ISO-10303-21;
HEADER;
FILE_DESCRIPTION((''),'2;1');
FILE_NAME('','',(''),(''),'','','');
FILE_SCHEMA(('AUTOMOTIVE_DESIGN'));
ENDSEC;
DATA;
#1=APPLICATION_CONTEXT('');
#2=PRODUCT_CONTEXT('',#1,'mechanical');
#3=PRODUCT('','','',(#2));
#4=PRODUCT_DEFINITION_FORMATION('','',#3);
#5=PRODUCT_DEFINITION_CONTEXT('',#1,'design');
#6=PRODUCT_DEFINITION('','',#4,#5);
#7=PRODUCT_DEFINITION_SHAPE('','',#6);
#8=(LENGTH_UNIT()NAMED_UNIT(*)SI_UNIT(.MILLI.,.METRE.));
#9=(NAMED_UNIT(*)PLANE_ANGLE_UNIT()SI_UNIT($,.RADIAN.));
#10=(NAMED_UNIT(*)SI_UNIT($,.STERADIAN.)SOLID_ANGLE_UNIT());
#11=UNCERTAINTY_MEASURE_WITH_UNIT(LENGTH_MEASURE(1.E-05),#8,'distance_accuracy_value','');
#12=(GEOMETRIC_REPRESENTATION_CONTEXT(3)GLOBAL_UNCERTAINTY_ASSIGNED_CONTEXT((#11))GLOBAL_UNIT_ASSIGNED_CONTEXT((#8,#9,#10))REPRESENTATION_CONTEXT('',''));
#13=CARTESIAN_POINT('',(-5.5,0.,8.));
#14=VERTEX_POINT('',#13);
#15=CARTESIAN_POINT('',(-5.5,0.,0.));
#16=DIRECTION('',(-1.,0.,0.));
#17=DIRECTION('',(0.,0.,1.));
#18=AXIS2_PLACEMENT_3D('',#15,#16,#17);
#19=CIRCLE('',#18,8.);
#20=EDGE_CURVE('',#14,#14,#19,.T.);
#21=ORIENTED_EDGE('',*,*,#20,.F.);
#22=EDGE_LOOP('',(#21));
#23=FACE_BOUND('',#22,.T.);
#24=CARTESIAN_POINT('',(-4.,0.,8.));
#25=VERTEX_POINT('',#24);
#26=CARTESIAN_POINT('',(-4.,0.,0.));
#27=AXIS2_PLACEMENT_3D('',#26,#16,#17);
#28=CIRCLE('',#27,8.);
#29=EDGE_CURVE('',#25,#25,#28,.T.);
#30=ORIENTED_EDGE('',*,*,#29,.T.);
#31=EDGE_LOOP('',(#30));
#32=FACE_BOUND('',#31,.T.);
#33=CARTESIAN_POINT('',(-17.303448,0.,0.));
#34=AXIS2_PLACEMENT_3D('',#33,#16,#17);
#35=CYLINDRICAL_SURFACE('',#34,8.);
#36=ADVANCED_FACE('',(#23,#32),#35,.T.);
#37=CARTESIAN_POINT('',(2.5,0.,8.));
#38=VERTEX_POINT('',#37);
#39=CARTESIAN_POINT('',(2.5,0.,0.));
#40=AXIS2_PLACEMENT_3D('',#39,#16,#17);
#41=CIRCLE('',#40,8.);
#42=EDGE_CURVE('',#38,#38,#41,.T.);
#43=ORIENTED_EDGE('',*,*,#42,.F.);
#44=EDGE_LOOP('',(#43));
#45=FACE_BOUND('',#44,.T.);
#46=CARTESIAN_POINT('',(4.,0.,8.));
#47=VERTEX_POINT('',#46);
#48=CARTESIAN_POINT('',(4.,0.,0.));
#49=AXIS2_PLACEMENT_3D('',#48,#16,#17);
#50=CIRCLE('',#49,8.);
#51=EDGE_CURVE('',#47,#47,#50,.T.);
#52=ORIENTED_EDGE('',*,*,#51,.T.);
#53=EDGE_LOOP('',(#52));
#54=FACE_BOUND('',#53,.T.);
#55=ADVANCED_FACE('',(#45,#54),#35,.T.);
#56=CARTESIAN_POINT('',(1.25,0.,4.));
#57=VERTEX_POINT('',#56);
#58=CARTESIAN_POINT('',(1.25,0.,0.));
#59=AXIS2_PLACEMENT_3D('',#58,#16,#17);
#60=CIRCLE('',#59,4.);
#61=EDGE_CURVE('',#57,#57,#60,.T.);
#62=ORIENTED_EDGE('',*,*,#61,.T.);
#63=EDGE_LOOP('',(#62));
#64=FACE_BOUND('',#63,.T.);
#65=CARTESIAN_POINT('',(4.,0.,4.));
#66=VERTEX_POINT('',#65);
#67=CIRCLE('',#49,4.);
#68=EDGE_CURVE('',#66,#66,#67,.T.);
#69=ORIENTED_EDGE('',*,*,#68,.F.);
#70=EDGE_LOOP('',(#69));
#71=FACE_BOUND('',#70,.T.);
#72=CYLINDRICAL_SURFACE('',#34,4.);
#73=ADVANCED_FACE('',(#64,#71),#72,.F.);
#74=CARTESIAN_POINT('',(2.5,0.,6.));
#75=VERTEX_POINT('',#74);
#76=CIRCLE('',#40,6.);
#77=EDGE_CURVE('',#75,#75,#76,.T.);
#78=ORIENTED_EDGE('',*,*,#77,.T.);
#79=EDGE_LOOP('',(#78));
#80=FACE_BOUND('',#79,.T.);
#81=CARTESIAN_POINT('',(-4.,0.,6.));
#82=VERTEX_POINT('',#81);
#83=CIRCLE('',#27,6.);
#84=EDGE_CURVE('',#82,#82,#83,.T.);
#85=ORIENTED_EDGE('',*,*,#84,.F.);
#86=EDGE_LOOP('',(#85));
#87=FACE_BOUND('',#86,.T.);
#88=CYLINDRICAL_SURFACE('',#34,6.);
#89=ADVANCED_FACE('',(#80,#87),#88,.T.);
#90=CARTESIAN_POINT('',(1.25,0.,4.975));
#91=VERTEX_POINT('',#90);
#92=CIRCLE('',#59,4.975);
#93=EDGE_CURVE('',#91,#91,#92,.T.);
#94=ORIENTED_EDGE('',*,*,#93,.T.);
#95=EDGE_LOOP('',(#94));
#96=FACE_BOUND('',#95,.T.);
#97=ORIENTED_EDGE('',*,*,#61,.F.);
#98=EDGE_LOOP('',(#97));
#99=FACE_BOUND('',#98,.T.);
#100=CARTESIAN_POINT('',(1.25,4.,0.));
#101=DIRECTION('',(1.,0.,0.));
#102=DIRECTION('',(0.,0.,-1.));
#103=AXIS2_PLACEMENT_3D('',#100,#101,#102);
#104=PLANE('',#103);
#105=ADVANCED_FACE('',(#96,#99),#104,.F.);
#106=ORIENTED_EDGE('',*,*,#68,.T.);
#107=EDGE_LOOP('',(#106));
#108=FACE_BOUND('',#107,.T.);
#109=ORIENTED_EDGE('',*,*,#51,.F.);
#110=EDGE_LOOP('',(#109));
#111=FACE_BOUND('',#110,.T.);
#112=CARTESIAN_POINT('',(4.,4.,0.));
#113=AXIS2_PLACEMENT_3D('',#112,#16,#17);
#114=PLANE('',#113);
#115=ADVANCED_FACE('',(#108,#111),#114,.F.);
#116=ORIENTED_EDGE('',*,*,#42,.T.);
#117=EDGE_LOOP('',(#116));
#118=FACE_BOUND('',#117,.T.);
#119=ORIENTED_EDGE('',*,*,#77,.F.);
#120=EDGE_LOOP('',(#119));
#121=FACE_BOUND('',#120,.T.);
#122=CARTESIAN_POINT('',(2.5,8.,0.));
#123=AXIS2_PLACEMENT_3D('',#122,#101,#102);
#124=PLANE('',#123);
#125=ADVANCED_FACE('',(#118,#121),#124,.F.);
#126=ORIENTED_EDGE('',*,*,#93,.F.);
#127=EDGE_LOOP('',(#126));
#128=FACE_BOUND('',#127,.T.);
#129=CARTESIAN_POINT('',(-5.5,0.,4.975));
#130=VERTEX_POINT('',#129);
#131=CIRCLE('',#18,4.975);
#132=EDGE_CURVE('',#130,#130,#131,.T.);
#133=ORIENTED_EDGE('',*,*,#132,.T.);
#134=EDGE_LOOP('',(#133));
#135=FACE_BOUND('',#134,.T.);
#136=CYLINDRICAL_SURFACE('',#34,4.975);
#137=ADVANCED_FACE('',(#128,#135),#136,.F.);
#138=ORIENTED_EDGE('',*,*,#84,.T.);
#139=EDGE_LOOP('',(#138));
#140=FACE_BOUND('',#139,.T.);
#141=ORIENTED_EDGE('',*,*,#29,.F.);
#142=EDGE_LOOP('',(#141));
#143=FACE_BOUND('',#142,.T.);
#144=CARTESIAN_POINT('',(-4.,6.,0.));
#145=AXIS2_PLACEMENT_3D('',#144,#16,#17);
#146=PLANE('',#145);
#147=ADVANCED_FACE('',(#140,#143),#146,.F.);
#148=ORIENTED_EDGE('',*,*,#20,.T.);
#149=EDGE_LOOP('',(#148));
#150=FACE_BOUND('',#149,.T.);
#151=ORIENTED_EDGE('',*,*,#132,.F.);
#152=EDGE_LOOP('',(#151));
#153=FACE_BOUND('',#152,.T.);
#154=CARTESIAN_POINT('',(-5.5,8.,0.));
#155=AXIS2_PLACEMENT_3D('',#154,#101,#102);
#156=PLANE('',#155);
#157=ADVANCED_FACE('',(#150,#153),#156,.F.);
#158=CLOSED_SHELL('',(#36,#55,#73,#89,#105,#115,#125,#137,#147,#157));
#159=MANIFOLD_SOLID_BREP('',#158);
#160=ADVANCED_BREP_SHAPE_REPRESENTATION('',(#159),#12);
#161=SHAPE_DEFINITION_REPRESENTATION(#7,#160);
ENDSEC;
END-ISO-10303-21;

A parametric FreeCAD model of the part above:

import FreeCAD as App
import Part
import Sketcher
from FreeCAD import Vector
Q = App.Units.Quantity


def add_polygon(sketch, points):
    """Adds a closed chain of lines whose ends are joined by coincident constraints."""
    first, n = sketch.GeometryCount, len(points)
    for a, b in zip(points, points[1:] + points[:1]):
        sketch.addGeometry(Part.LineSegment(App.Vector(*a, 0), App.Vector(*b, 0)), False)
    for i in range(n):
        sketch.addConstraint(Sketcher.Constraint("Coincident", first + i, 2, first + (i + 1) % n, 1))

doc = App.newDocument("Part")
body = doc.addObject("PartDesign::Body", "Body")

sketch1 = body.newObject("Sketcher::SketchObject", "Sketch")
sketch1.AttachmentSupport = (doc.getObject("XY_Plane"), [""])
sketch1.MapMode = "FlatFace"
add_polygon(sketch1, [(-5.5, 5), (1.2, 5), (1.2, 4), (4, 4), (4, 8), (2.5, 8), (2.5, 6), (-4, 6), (-4, 8), (-5.5, 8)])
sketch1.addConstraint(Sketcher.Constraint("Horizontal", 0))
sketch1.addConstraint(Sketcher.Constraint("Vertical", 1))
sketch1.addConstraint(Sketcher.Constraint("Horizontal", 2))
sketch1.addConstraint(Sketcher.Constraint("Vertical", 3))
sketch1.addConstraint(Sketcher.Constraint("Horizontal", 4))
sketch1.addConstraint(Sketcher.Constraint("Vertical", 5))
sketch1.addConstraint(Sketcher.Constraint("Horizontal", 6))
sketch1.addConstraint(Sketcher.Constraint("Vertical", 7))
sketch1.addConstraint(Sketcher.Constraint("Horizontal", 8))
sketch1.addConstraint(Sketcher.Constraint("Vertical", 9))
sketch1.addConstraint(Sketcher.Constraint("Symmetric", 3, 2, 7, 2, -2))
sketch1.addConstraint(Sketcher.Constraint("Equal", 4, 8))
sketch1.addConstraint(Sketcher.Constraint("DistanceY", 3, 1, 3, 2, Q("4 mm")))
sketch1.addConstraint(Sketcher.Constraint("DistanceY", 5, 2, 5, 1, Q("2 mm")))
sketch1.addConstraint(Sketcher.Constraint("DistanceX", 4, 2, 4, 1, Q("1.5 mm")))
sketch1.addConstraint(Sketcher.Constraint("DistanceX", 6, 2, 6, 1, Q("6.5 mm")))
sketch1.addConstraint(Sketcher.Constraint("DistanceY", -1, 1, 1, 2, Q("4 mm")))
sketch1.addConstraint(Sketcher.Constraint("DistanceX", 0, 1, 0, 2, Q("6.75 mm")))
sketch1.addConstraint(Sketcher.Constraint("DistanceY", 1, 2, 1, 1, Q("0.975 mm")))
revolution = body.newObject("PartDesign::Revolution", "Revolution")
revolution.Profile = sketch1
revolution.ReferenceAxis = (sketch1, ["H_Axis"])
revolution.Angle = 360

doc.recompute()
